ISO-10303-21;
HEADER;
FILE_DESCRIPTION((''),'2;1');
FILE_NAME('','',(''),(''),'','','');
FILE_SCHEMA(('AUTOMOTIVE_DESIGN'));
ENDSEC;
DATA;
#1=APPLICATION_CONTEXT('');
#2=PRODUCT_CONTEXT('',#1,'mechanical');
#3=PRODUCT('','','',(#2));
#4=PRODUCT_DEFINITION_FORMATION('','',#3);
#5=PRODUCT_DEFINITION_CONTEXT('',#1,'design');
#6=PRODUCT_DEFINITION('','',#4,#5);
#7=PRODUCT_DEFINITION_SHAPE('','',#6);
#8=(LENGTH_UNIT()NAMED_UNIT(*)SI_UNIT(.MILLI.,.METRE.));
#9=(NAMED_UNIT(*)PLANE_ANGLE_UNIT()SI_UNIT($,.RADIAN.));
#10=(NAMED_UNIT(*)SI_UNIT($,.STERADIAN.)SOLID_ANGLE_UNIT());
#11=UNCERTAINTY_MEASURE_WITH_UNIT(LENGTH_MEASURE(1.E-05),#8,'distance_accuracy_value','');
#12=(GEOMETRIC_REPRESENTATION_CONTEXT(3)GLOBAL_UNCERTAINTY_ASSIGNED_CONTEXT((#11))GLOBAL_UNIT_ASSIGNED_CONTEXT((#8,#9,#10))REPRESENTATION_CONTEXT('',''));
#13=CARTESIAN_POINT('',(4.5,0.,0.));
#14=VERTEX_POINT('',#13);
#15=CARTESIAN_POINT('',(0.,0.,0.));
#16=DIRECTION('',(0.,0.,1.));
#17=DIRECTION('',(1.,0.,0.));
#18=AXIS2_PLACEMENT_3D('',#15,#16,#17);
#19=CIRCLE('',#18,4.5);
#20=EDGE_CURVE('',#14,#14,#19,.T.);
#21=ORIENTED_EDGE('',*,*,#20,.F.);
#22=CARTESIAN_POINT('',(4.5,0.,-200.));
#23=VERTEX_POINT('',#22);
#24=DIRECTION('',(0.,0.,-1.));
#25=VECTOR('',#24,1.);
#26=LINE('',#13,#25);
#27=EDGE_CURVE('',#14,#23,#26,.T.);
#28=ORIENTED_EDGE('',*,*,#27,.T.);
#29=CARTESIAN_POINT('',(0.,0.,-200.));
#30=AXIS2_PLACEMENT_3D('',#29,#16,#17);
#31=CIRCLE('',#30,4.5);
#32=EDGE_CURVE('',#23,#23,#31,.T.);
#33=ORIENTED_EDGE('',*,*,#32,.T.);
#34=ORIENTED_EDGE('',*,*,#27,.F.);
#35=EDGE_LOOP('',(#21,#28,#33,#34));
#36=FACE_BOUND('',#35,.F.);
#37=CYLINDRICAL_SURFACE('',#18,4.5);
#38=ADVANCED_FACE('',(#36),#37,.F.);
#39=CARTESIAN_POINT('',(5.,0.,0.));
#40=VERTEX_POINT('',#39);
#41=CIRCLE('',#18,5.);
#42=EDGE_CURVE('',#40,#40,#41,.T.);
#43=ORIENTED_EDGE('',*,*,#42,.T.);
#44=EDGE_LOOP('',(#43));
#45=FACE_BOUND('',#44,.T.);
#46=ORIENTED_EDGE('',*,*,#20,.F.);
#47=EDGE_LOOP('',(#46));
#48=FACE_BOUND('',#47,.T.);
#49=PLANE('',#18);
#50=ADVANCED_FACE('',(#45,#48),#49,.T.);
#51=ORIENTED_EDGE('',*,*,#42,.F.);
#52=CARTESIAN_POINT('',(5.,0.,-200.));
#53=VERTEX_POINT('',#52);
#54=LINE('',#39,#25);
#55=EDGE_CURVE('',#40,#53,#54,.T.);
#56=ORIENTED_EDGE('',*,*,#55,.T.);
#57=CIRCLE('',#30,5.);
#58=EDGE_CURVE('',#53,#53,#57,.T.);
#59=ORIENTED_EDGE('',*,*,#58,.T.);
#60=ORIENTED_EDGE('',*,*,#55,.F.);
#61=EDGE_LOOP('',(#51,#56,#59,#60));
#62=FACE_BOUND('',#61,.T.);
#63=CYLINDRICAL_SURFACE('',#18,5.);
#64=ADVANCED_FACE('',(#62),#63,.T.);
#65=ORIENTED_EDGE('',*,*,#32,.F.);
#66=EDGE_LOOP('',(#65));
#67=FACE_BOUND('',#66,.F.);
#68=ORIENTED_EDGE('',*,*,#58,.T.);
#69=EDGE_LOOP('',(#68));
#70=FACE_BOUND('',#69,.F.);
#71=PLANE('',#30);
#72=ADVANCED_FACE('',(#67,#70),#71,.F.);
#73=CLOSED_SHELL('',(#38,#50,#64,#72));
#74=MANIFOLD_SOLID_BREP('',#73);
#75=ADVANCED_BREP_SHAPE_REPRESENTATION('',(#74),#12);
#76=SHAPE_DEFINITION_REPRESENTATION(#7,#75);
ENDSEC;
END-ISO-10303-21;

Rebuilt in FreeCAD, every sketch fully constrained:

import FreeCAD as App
import Part
import Sketcher
Q = App.Units.Quantity


def faces_at(feature, points):
    """Names of the faces that lie closest to the given points."""
    faces = feature.Shape.Faces
    near = lambda p: min(range(len(faces)), key=lambda i: faces[i].distToShape(Part.Vertex(*p))[0])
    return sorted({f"Face{near(p) + 1}" for p in points})

doc = App.newDocument("Part")
body = doc.addObject("PartDesign::Body", "Body")

# Sketch on XY plane
sketch1 = doc.addObject("Sketcher::SketchObject", "Sketch")
body.addObject(sketch1)
sketch1.AttachmentSupport = (doc.XY_Plane, [""])
sketch1.MapMode = "FlatFace"
sketch1.addGeometry(Part.Circle(App.Vector(0, 0, 0), App.Vector(0, 0, 1), 5), False)
sketch1.addConstraint([
    Sketcher.Constraint("Coincident", 0, 3, -1, 1),
    Sketcher.Constraint("Diameter", 0, Q("10 mm")),
])
pad1 = doc.addObject("PartDesign::Pad", "Pad")
body.addObject(pad1)
pad1.Profile = sketch1
pad1.Length = 200
pad1.Reversed = True
doc.recompute()

thickness = doc.addObject("PartDesign::Thickness", "Thickness")
body.addObject(thickness)
thickness.Base = (pad1, faces_at(pad1, [(-0.591, 1.558, 0), (-0.591, 1.558, -200)]))
thickness.Value = 0.5
thickness.Reversed = True
thickness.Join = "Intersection"

doc.recompute()
